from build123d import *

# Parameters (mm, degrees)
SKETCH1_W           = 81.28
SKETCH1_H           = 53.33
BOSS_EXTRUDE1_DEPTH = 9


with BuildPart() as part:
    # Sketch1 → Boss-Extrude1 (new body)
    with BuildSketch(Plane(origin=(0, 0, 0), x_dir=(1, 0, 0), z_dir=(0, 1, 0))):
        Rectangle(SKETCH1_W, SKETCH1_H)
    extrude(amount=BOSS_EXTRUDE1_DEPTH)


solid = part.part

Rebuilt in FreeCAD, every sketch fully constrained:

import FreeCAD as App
import Part
import Sketcher
Q = App.Units.Quantity


def add_polygon(sketch, points):
    """Adds a closed chain of lines whose ends are joined by coincident constraints."""
    first, n = sketch.GeometryCount, len(points)
    for a, b in zip(points, points[1:] + points[:1]):
        sketch.addGeometry(Part.LineSegment(App.Vector(*a, 0), App.Vector(*b, 0)), False)
    for i in range(n):
        sketch.addConstraint(Sketcher.Constraint("Coincident", first + i, 2, first + (i + 1) % n, 1))

doc = App.newDocument("Part")
body = doc.addObject("PartDesign::Body", "Body")

sketch1 = doc.addObject("Sketcher::SketchObject", "Sketch")
body.addObject(sketch1)
sketch1.AttachmentSupport = (doc.XZ_Plane, [""])
sketch1.MapMode = "FlatFace"
add_polygon(sketch1, [(-41, -27), (-41, 27), (41, 27), (41, -27)])
sketch1.addConstraint([
    Sketcher.Constraint("Vertical", 0),
    Sketcher.Constraint("Horizontal", 1),
    Sketcher.Constraint("Vertical", 2),
    Sketcher.Constraint("Horizontal", 3),
    Sketcher.Constraint("Symmetric", 0, 2, 2, 2, -1, 1),
    Sketcher.Constraint("DistanceX", 1, 1, 1, 2, Q("81.28 mm")),
    Sketcher.Constraint("DistanceY", 0, 1, 0, 2, Q("53.33 mm")),
])
pad1 = doc.addObject("PartDesign::Pad", "Pad")
body.addObject(pad1)
pad1.Profile = sketch1
pad1.Length = 9
pad1.Reversed = True

doc.recompute()
